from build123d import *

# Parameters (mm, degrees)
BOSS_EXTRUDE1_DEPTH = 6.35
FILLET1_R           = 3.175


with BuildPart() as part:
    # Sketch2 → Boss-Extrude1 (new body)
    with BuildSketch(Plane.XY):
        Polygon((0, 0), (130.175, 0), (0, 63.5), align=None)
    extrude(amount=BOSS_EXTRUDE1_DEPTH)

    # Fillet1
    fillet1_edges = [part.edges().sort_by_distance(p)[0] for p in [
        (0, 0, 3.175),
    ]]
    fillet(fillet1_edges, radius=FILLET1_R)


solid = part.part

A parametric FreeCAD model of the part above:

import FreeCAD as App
import Part
import Sketcher
from FreeCAD import Vector
Q = App.Units.Quantity


def edges_at(feature, points):
    """Names of the edges that pass closest to the given points."""
    edges = feature.Shape.Edges
    near = lambda p: min(range(len(edges)), key=lambda i: edges[i].distToShape(Part.Vertex(*p))[0])
    return sorted({f"Edge{near(p) + 1}" for p in points})

doc = App.newDocument("Part")
params = doc.addObject("Spreadsheet::Sheet", "Params")
for row, (alias, value) in enumerate([
    ("sketch1_height", "2.5 in"),
    ("sketch1_width", "5.125 in"),
    ("pad1_length", "0.25 in"),
    ("fillet_radius", "0.125 in"),
], start=1):
    params.set(f"A{row}", alias)
    params.set(f"B{row}", "=" + value)
    params.setAlias(f"B{row}", alias)

body = doc.addObject("PartDesign::Body", "Body")

# Sketch on XY plane
sketch1 = body.newObject("Sketcher::SketchObject", "Sketch")
sketch1.AttachmentSupport = (doc.getObject("XY_Plane"), [""])
sketch1.MapMode = "FlatFace"
sketch1.addGeometry([
    Part.LineSegment(Vector(0, 0, 0), Vector(130, 0, 0)),
    Part.LineSegment(Vector(130, 0, 0), Vector(0, 64, 0)),
    Part.LineSegment(Vector(0, 64, 0), Vector(0, 0, 0)),
], False)
sketch1.addConstraint([
    Sketcher.Constraint("Coincident", 0, 2, 1, 1),
    Sketcher.Constraint("Coincident", 1, 2, 2, 1),
    Sketcher.Constraint("Coincident", 2, 2, 0, 1),
    Sketcher.Constraint("Horizontal", 0),
    Sketcher.Constraint("Vertical", 2),
    Sketcher.Constraint("Coincident", 2, 2, -1, 1),
    Sketcher.Constraint("DistanceY", 2, 2, 2, 1, Q("2.5 in")),
    Sketcher.Constraint("DistanceX", 0, 1, 0, 2, Q("5.125 in")),
])
sketch1.setExpression("Constraints[6]", "Params.sketch1_height")
sketch1.setExpression("Constraints[7]", "Params.sketch1_width")
pad1 = body.newObject("PartDesign::Pad", "Pad")
pad1.Profile = sketch1
pad1.setExpression("Length", "Params.pad1_length")
doc.recompute()

fillet = body.newObject("PartDesign::Fillet", "Fillet")
fillet.Base = (pad1, edges_at(pad1, [(0, 0, 3.175)]))
fillet.setExpression("Radius", "Params.fillet_radius")

doc.recompute()
